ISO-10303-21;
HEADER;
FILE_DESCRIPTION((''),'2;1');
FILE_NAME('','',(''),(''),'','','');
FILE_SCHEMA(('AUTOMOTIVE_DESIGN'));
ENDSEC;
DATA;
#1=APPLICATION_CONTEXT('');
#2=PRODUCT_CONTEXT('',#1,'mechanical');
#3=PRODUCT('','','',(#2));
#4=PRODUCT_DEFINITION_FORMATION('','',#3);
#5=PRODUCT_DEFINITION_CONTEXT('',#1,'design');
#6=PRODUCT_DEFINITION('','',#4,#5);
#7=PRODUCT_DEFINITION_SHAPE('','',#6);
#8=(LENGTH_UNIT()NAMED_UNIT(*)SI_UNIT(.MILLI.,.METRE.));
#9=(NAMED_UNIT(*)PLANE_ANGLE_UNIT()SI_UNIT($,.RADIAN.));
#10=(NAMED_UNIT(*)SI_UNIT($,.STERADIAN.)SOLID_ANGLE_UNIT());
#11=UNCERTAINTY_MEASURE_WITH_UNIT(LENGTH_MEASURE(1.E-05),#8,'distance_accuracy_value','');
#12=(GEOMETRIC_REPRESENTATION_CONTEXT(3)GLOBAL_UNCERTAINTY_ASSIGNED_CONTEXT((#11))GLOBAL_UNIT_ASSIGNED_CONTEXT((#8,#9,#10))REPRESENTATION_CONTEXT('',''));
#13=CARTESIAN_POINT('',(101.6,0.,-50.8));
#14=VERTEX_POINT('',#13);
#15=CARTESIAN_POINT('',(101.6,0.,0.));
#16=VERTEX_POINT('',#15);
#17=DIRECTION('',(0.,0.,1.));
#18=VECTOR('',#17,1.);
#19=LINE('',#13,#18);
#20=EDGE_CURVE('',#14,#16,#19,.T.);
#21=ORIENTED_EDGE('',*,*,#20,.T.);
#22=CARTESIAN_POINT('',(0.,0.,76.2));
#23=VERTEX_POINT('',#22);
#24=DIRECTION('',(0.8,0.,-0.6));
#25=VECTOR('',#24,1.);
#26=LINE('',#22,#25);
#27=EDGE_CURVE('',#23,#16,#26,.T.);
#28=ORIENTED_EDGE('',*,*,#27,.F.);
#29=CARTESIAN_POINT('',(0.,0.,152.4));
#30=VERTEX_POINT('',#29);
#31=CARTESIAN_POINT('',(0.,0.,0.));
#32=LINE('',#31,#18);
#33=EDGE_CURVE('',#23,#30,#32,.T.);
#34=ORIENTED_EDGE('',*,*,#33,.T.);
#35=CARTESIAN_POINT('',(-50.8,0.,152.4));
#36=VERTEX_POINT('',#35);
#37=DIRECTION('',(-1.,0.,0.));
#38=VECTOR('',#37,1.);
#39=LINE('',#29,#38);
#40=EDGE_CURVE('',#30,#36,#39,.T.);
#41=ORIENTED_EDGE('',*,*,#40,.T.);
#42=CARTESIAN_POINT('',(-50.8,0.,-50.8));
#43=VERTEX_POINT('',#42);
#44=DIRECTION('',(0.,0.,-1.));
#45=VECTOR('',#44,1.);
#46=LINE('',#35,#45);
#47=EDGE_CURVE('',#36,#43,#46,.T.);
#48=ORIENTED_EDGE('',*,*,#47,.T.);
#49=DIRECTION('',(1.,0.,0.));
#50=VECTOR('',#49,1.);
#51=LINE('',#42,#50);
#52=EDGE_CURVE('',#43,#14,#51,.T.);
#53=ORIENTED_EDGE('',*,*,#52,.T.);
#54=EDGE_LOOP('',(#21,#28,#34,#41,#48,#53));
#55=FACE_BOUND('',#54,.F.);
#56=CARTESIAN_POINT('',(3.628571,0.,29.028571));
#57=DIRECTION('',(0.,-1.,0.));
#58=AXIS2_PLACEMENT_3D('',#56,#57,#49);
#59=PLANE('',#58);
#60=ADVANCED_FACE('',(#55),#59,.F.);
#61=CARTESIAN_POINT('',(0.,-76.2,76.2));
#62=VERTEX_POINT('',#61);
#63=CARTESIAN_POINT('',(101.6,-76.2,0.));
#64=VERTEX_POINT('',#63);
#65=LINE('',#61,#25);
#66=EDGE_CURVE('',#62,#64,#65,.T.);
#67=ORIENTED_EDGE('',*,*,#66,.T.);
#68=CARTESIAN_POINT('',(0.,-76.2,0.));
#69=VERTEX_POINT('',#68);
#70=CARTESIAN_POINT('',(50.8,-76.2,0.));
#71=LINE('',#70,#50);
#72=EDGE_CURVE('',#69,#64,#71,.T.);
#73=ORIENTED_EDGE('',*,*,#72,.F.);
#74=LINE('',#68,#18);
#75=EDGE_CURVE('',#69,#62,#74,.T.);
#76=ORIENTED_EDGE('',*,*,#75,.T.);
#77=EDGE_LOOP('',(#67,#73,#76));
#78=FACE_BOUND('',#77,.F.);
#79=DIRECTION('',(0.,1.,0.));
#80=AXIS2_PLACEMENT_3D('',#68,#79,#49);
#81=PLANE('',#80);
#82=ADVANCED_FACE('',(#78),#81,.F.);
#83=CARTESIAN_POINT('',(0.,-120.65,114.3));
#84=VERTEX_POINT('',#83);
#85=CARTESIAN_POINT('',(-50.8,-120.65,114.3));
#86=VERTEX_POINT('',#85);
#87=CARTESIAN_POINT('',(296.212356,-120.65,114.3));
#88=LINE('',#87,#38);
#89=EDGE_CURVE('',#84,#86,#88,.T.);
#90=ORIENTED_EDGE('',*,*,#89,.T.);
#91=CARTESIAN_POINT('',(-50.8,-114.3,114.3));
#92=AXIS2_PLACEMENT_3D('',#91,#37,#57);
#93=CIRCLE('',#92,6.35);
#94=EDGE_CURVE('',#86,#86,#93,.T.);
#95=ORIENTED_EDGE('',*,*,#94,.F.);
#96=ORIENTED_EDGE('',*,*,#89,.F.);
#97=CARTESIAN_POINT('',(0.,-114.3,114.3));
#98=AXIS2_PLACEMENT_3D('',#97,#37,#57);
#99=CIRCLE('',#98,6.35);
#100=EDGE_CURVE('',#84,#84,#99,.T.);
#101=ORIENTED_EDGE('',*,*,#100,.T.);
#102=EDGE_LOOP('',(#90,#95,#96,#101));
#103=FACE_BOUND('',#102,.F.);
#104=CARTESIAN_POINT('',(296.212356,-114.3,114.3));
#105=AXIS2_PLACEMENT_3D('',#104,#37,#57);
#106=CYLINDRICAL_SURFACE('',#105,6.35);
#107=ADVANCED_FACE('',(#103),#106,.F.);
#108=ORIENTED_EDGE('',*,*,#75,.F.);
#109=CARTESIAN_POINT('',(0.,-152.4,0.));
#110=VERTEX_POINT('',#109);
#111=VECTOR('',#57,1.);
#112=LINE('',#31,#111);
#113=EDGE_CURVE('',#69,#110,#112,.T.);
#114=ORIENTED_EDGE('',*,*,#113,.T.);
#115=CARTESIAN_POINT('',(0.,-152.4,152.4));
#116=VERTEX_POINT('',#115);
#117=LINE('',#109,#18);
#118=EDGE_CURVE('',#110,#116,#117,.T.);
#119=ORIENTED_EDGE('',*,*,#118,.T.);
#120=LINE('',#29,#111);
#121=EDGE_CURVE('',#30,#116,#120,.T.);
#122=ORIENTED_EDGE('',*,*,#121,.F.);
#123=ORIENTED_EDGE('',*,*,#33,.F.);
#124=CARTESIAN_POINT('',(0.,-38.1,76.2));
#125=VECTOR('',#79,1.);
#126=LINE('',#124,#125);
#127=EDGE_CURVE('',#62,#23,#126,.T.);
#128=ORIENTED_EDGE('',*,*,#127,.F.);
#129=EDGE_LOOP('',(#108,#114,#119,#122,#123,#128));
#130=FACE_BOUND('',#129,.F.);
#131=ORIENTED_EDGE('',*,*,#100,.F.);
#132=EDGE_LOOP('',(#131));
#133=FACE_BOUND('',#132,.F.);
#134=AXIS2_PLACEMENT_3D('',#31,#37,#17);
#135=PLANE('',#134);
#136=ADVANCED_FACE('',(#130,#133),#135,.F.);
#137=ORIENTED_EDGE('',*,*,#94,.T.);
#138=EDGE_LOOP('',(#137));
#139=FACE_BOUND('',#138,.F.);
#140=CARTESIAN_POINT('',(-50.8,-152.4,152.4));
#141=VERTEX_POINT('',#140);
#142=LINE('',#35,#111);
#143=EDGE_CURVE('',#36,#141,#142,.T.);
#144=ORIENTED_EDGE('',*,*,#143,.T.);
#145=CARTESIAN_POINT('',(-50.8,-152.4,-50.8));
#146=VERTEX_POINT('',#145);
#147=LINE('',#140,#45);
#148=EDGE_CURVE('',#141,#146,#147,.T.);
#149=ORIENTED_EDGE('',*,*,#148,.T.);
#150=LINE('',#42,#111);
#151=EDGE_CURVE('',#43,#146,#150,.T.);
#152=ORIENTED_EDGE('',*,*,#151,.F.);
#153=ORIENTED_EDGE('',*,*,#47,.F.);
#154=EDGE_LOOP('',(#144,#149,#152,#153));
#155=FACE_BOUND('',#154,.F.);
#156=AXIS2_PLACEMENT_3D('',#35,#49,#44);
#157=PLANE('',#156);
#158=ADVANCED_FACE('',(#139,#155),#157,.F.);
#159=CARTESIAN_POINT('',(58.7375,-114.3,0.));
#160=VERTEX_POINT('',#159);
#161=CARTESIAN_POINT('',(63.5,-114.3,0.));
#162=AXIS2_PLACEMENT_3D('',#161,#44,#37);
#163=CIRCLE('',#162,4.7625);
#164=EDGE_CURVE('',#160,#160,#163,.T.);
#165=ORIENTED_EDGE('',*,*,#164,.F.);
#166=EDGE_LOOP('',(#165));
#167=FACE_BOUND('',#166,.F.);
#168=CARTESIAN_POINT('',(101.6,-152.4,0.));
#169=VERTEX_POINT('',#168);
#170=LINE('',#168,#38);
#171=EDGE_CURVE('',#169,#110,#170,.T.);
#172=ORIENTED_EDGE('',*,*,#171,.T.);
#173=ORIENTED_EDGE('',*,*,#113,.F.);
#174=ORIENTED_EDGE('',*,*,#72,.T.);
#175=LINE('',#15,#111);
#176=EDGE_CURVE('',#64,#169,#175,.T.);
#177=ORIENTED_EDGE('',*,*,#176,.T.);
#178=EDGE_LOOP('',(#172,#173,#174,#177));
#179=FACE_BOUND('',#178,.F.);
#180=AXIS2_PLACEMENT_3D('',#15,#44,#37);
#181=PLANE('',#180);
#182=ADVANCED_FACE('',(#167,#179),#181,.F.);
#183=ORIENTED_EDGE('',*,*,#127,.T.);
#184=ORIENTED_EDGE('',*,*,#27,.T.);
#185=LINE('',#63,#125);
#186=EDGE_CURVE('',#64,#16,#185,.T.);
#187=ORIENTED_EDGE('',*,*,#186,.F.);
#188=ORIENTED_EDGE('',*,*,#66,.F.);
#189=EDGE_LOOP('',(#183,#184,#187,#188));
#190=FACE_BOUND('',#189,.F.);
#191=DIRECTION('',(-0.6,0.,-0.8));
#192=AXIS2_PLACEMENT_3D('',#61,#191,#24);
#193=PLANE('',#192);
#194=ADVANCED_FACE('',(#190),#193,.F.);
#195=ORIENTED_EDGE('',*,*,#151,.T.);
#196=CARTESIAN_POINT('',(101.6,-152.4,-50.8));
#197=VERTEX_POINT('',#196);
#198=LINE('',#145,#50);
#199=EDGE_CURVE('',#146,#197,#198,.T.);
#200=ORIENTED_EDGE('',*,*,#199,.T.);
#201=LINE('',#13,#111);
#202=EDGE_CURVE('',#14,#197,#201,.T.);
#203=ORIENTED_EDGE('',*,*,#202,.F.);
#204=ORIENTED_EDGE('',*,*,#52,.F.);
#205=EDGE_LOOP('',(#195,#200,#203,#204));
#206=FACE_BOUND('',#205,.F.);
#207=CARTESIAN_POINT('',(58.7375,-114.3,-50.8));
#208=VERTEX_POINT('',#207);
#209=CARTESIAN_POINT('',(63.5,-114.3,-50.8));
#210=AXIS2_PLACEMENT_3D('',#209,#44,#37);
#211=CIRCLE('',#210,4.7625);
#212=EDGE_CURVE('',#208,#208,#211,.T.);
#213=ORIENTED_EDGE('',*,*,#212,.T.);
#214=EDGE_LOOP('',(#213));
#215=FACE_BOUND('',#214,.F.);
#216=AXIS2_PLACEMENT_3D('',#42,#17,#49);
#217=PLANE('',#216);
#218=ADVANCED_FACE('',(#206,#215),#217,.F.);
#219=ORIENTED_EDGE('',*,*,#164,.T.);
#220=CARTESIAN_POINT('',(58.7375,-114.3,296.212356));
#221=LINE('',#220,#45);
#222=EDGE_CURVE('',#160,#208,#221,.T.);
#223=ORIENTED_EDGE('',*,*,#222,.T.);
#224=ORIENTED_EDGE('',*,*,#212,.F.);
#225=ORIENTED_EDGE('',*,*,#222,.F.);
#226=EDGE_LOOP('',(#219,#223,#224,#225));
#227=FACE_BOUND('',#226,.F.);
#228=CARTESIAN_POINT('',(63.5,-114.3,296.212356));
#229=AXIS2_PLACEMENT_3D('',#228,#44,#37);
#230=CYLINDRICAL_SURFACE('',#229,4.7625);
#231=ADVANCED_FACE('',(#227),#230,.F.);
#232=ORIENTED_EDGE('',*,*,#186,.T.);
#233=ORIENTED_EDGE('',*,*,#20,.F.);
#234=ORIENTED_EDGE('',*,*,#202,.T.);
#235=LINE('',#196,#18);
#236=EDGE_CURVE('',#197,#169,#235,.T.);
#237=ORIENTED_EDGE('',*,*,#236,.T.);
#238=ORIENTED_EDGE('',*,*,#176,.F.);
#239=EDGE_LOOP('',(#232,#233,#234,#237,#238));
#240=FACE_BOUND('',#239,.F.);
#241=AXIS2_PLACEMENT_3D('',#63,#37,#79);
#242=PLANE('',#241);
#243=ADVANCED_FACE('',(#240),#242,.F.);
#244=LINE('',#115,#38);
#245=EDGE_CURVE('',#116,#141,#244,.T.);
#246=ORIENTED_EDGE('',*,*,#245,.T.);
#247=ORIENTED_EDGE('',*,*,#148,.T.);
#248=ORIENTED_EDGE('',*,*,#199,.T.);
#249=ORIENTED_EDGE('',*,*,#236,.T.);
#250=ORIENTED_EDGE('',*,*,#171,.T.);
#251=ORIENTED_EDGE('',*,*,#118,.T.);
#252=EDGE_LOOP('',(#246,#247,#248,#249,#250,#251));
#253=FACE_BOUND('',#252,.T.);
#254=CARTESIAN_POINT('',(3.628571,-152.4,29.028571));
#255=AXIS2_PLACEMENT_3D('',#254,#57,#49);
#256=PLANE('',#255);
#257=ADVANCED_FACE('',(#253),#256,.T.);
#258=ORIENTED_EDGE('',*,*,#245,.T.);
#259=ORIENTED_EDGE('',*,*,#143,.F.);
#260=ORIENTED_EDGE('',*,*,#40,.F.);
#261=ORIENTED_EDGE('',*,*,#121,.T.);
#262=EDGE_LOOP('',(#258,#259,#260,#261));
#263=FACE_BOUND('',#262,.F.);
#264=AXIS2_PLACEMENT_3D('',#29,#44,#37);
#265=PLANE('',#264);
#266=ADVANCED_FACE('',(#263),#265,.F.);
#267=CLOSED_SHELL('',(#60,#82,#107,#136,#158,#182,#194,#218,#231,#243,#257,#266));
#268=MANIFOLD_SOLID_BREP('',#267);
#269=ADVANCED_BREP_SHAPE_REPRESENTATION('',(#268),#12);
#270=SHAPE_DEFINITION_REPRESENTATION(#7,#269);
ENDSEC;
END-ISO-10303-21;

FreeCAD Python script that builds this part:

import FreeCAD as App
import Part
import Sketcher
Q = App.Units.Quantity

doc = App.newDocument("Part")
body = doc.addObject("PartDesign::Body", "Body")

# Sketch on XZ plane
sketch1 = doc.addObject("Sketcher::SketchObject", "Sketch")
body.addObject(sketch1)
sketch1.AttachmentSupport = (doc.XZ_Plane, [""])
sketch1.MapMode = "FlatFace"
sketch1.addGeometry(Part.LineSegment(App.Vector(0, 152, 0), App.Vector(-51, 152, 0)), False)
sketch1.addGeometry(Part.LineSegment(App.Vector(-51, 152, 0), App.Vector(-51, -51, 0)), False)
sketch1.addGeometry(Part.LineSegment(App.Vector(-51, -51, 0), App.Vector(102, -51, 0)), False)
sketch1.addGeometry(Part.LineSegment(App.Vector(102, -51, 0), App.Vector(102, 0, 0)), False)
sketch1.addGeometry(Part.LineSegment(App.Vector(102, 0, 0), App.Vector(0, 0, 0)), False)
sketch1.addGeometry(Part.LineSegment(App.Vector(0, 0, 0), App.Vector(0, 152, 0)), False)
sketch1.addConstraint(Sketcher.Constraint("Coincident", 0, 2, 1, 1))
sketch1.addConstraint(Sketcher.Constraint("Coincident", 1, 2, 2, 1))
sketch1.addConstraint(Sketcher.Constraint("Coincident", 2, 2, 3, 1))
sketch1.addConstraint(Sketcher.Constraint("Coincident", 3, 2, 4, 1))
sketch1.addConstraint(Sketcher.Constraint("Coincident", 4, 2, 5, 1))
sketch1.addConstraint(Sketcher.Constraint("Coincident", 5, 2, 0, 1))
sketch1.addConstraint(Sketcher.Constraint("Horizontal", 0))
sketch1.addConstraint(Sketcher.Constraint("Vertical", 1))
sketch1.addConstraint(Sketcher.Constraint("Horizontal", 2))
sketch1.addConstraint(Sketcher.Constraint("Vertical", 3))
sketch1.addConstraint(Sketcher.Constraint("Horizontal", 4))
sketch1.addConstraint(Sketcher.Constraint("Vertical", 5))
sketch1.addConstraint(Sketcher.Constraint("Coincident", 4, 2, -1, 1))
sketch1.addConstraint(Sketcher.Constraint("Equal", 0, 3))
sketch1.addConstraint(Sketcher.Constraint("Equal", 2, 5))
sketch1.addConstraint(Sketcher.Constraint("DistanceX", 0, 2, 0, 1, Q("2 in")))
sketch1.addConstraint(Sketcher.Constraint("DistanceX", 2, 1, 2, 2, Q("6 in")))
pad1 = doc.addObject("PartDesign::Pad", "Pad")
body.addObject(pad1)
pad1.Profile = sketch1
pad1.Length = Q("6 in")

# Sketch on XY plane
sketch2 = doc.addObject("Sketcher::SketchObject", "Sketch001")
body.addObject(sketch2)
sketch2.AttachmentSupport = (doc.XY_Plane, [""])
sketch2.MapMode = "FlatFace"
sketch2.addGeometry(Part.LineSegment(App.Vector(0, 0, 0), App.Vector(0, -76, 0)), False)
sketch2.addGeometry(Part.LineSegment(App.Vector(0, -76, 0), App.Vector(102, -76, 0)), False)
sketch2.addGeometry(Part.LineSegment(App.Vector(102, -76, 0), App.Vector(102, 0, 0)), False)
sketch2.addGeometry(Part.LineSegment(App.Vector(102, 0, 0), App.Vector(0, 0, 0)), False)
sketch2.addConstraint(Sketcher.Constraint("Coincident", 0, 2, 1, 1))
sketch2.addConstraint(Sketcher.Constraint("Coincident", 1, 2, 2, 1))
sketch2.addConstraint(Sketcher.Constraint("Coincident", 2, 2, 3, 1))
sketch2.addConstraint(Sketcher.Constraint("Coincident", 3, 2, 0, 1))
sketch2.addConstraint(Sketcher.Constraint("Vertical", 0))
sketch2.addConstraint(Sketcher.Constraint("Horizontal", 1))
sketch2.addConstraint(Sketcher.Constraint("Vertical", 2))
sketch2.addConstraint(Sketcher.Constraint("Horizontal", 3))
sketch2.addConstraint(Sketcher.Constraint("Coincident", 3, 2, -1, 1))
sketch2.addConstraint(Sketcher.Constraint("DistanceX", 1, 1, 1, 2, Q("4 in")))
sketch2.addConstraint(Sketcher.Constraint("DistanceY", 0, 2, 0, 1, Q("3 in")))
pad2 = doc.addObject("PartDesign::Pad", "Pad001")
body.addObject(pad2)
pad2.Profile = sketch2
pad2.Length = Q("3 in")

# Sketch on XZ plane
sketch3 = doc.addObject("Sketcher::SketchObject", "Sketch002")
body.addObject(sketch3)
sketch3.AttachmentSupport = (doc.XZ_Plane, [""])
sketch3.MapMode = "FlatFace"
sketch3.AttachmentOffset = App.Placement(App.Vector(0, 0, 3 * 25.4), App.Rotation())
sketch3.addGeometry(Part.LineSegment(App.Vector(102, 76, 0), App.Vector(0, 76, 0)), False)
sketch3.addGeometry(Part.LineSegment(App.Vector(0, 76, 0), App.Vector(102, 0, 0)), False)
sketch3.addGeometry(Part.LineSegment(App.Vector(102, 0, 0), App.Vector(102, 76, 0)), False)
sketch3.addConstraint(Sketcher.Constraint("Coincident", 0, 2, 1, 1))
sketch3.addConstraint(Sketcher.Constraint("Coincident", 1, 2, 2, 1))
sketch3.addConstraint(Sketcher.Constraint("Coincident", 2, 2, 0, 1))
sketch3.addConstraint(Sketcher.Constraint("Horizontal", 0))
sketch3.addConstraint(Sketcher.Constraint("Vertical", 2))
sketch3.addConstraint(Sketcher.Constraint("PointOnObject", 0, 2, -2))
sketch3.addConstraint(Sketcher.Constraint("PointOnObject", 1, 2, -1))
sketch3.addConstraint(Sketcher.Constraint("DistanceX", 0, 2, 0, 1, Q("4 in")))
sketch3.addConstraint(Sketcher.Constraint("DistanceY", 2, 1, 2, 2, Q("3 in")))
pocket1 = doc.addObject("PartDesign::Pocket", "Pocket")
body.addObject(pocket1)
pocket1.Profile = sketch3
pocket1.Length = Q("3 in")

# Sketch on YZ plane
sketch4 = doc.addObject("Sketcher::SketchObject", "Sketch003")
body.addObject(sketch4)
sketch4.AttachmentSupport = (doc.YZ_Plane, [""])
sketch4.MapMode = "FlatFace"
sketch4.addGeometry(Part.Circle(App.Vector(-114, 114, 0), App.Vector(0, 0, 1), 6), False)
sketch4.addConstraint(Sketcher.Constraint("Diameter", 0, Q("0.5 in")))
sketch4.addConstraint(Sketcher.Constraint("DistanceX", 0, 3, -1, 1, Q("4.5 in")))
sketch4.addConstraint(Sketcher.Constraint("DistanceY", -1, 1, 0, 3, Q("4.5 in")))
doc.recompute()
hole = doc.addObject("PartDesign::Hole", "Hole")
body.addObject(hole)
hole.Profile = sketch4
hole.ThreadType = "None"
hole.Diameter = Q("0.5 in")
hole.DepthType = "ThroughAll"

# Sketch on XY plane
sketch5 = doc.addObject("Sketcher::SketchObject", "Sketch004")
body.addObject(sketch5)
sketch5.AttachmentSupport = (doc.XY_Plane, [""])
sketch5.MapMode = "FlatFace"
sketch5.addGeometry(Part.Circle(App.Vector(63.5, -114.3, 0), App.Vector(0, 0, 1), 4.8), False)
sketch5.addConstraint(Sketcher.Constraint("Diameter", 0, Q("0.375 in")))
sketch5.addConstraint(Sketcher.Constraint("DistanceX", -1, 1, 0, 3, Q("2.5 in")))
sketch5.addConstraint(Sketcher.Constraint("DistanceY", 0, 3, -1, 1, Q("4.5 in")))
doc.recompute()
hole2 = doc.addObject("PartDesign::Hole", "Hole001")
body.addObject(hole2)
hole2.Profile = sketch5
hole2.ThreadType = "None"
hole2.Diameter = Q("0.375 in")
hole2.DepthType = "ThroughAll"

doc.recompute()
